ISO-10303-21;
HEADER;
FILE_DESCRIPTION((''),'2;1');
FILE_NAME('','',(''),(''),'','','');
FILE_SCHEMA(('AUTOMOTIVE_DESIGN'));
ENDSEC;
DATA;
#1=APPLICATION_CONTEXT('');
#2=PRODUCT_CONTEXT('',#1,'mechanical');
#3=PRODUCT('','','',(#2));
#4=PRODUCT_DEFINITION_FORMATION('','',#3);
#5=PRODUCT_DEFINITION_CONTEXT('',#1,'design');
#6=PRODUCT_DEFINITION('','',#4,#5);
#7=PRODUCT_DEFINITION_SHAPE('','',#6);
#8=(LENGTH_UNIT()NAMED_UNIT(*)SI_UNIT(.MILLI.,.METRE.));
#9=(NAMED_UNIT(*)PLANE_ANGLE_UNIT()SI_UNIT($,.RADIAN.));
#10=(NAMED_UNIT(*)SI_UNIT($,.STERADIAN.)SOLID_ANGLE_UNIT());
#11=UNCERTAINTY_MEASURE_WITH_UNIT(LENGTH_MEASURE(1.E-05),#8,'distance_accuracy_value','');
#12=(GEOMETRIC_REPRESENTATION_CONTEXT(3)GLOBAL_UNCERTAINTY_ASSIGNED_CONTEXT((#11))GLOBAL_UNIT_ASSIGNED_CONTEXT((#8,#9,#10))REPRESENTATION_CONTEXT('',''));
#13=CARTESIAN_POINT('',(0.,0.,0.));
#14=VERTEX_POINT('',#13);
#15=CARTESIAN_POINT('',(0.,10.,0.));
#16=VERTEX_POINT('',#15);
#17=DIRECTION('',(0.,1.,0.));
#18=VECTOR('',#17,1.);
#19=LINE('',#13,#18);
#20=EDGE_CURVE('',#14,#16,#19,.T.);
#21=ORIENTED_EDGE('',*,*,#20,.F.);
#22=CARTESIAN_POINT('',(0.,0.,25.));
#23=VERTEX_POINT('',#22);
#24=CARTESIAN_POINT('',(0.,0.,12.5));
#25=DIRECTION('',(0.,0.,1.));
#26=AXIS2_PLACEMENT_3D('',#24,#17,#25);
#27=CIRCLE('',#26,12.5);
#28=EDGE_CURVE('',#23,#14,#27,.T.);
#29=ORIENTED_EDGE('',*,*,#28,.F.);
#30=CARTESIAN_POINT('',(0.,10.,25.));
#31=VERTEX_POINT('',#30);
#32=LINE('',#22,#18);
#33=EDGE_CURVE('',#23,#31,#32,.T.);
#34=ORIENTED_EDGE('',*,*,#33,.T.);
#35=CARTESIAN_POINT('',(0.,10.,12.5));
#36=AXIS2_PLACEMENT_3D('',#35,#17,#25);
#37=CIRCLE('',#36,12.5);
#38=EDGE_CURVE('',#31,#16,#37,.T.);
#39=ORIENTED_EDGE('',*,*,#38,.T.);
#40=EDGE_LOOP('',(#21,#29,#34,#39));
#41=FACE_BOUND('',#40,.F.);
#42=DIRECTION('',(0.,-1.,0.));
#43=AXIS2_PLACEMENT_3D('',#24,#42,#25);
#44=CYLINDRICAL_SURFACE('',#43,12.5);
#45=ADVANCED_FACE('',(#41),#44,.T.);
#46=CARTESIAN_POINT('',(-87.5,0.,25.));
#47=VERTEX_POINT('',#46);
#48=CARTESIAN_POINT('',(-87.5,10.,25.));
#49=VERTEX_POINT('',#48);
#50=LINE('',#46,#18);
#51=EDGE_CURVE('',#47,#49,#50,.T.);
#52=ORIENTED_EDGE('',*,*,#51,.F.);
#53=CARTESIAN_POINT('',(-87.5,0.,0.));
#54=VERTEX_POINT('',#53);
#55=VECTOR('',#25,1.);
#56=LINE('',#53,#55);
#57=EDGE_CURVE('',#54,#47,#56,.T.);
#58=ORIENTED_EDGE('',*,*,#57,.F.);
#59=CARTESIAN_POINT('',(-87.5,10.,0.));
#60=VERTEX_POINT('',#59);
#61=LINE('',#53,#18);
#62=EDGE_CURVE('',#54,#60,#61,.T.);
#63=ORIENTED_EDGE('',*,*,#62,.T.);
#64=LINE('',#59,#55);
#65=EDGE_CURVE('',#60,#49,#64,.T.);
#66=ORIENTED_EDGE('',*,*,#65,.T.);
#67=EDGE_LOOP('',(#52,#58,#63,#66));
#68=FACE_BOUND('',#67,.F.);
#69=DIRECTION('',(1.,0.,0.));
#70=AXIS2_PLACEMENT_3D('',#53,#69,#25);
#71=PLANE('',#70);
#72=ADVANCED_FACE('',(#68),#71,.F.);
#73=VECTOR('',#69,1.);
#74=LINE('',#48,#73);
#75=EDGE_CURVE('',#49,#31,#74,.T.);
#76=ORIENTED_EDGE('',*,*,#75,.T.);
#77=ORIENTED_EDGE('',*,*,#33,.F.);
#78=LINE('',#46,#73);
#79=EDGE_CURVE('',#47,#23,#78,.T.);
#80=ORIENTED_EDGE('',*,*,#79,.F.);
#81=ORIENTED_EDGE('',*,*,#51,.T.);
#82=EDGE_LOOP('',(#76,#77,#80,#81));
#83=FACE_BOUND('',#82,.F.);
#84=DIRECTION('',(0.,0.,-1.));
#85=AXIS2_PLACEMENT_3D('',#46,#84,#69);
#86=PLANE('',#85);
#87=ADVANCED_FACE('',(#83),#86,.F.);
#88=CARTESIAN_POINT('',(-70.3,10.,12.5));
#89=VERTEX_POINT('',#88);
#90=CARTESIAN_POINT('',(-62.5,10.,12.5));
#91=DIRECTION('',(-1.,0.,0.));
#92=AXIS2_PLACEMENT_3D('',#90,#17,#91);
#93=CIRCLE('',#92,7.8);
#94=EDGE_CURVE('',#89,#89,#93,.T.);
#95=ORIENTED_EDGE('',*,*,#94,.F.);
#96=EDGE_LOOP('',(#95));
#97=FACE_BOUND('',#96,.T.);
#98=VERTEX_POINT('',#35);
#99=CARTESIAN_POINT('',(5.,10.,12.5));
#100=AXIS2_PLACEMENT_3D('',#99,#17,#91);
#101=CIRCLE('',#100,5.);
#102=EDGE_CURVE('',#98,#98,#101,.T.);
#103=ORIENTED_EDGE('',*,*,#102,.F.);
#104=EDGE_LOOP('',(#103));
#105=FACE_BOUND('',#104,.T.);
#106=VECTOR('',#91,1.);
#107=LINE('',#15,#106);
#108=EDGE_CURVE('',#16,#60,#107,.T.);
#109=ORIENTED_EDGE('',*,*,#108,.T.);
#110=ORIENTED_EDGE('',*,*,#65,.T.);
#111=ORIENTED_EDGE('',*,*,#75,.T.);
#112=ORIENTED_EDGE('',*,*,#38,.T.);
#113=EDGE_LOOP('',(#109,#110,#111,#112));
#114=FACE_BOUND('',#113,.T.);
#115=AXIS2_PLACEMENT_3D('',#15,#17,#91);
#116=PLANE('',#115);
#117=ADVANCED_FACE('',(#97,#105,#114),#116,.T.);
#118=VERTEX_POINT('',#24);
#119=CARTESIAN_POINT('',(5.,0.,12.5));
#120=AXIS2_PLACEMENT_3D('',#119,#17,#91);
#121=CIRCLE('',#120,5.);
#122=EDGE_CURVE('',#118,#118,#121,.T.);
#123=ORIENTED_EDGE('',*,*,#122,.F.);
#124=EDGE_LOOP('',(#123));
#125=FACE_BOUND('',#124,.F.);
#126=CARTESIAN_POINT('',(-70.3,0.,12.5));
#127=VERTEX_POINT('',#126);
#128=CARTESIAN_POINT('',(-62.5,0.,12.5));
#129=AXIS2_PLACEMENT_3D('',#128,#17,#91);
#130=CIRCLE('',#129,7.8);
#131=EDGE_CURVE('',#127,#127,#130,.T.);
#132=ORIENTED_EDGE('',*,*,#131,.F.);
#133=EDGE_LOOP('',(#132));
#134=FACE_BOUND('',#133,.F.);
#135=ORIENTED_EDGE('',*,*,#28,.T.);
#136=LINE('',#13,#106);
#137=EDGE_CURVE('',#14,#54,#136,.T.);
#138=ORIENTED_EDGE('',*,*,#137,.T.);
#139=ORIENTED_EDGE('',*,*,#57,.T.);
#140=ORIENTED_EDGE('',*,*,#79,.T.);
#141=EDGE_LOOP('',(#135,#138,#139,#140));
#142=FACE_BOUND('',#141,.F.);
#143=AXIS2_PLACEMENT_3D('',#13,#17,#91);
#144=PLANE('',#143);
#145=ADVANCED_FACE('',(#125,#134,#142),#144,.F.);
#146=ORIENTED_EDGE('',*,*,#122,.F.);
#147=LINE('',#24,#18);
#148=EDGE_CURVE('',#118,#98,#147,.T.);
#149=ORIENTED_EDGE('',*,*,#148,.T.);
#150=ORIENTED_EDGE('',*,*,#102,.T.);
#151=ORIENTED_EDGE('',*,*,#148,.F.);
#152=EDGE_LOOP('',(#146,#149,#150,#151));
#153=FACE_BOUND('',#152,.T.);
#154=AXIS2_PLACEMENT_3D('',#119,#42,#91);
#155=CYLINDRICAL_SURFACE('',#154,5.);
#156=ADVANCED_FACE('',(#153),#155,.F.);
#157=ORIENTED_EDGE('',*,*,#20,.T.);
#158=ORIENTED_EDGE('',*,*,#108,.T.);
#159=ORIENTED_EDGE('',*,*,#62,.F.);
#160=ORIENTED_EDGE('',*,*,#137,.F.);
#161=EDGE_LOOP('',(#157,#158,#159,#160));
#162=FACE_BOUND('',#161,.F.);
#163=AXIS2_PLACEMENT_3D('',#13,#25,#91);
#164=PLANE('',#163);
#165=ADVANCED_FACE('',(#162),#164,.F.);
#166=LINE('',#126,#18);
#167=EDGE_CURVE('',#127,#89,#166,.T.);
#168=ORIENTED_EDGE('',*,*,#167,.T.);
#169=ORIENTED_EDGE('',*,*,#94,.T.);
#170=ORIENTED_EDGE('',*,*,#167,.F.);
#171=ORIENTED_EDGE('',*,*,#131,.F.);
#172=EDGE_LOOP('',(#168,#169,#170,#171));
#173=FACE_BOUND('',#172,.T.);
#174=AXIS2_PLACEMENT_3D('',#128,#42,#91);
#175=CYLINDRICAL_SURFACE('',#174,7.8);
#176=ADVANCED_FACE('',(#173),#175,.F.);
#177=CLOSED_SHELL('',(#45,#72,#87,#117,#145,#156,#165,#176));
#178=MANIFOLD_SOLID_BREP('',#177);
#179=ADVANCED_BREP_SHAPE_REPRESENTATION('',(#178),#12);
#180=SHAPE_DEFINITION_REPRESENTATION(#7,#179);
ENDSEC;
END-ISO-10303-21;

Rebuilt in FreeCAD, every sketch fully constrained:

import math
import FreeCAD as App
import Part
import Sketcher

V = App.Vector

doc = App.newDocument("Part")
body = doc.addObject("PartDesign::Body", "Body")

# Sketch on XZ plane
sketch1 = doc.addObject("Sketcher::SketchObject", "Sketch")
body.addObject(sketch1)
sketch1.AttachmentSupport = (doc.XZ_Plane, [""])
sketch1.MapMode = "FlatFace"
sketch1.addGeometry([
    Part.ArcOfCircle(Part.Circle(V(0, 12, 0), V(0, 0, 1), 12), math.radians(-90), math.radians(90)),  # 0
    Part.LineSegment(V(0, 0, 0), V(-88, 0, 0)),  # 1
    Part.LineSegment(V(-88, 0, 0), V(-88, 25, 0)),  # 2
    Part.LineSegment(V(-88, 25, 0), V(0, 25, 0)),  # 3
    Part.Circle(V(5, 12, 0), V(0, 0, 1), 5),  # 4
    Part.Circle(V(-62, 12, 0), V(0, 0, 1), 8),  # 5
], False)
sketch1.addConstraint([
    Sketcher.Constraint("Tangent", 0, 1, 1, 1),
    Sketcher.Constraint("Coincident", 1, 2, 2, 1),
    Sketcher.Constraint("Coincident", 2, 2, 3, 1),
    Sketcher.Constraint("Tangent", 3, 2, 0, 2),
    Sketcher.Constraint("Horizontal", 1),
    Sketcher.Constraint("Vertical", 2),
    Sketcher.Constraint("Horizontal", 3),
    Sketcher.Constraint("Coincident", 0, 1, -1, 1),
    Sketcher.Constraint("Horizontal", 0, 3, 4, 3),
    Sketcher.Constraint("Horizontal", 4, 3, 5, 3),
    Sketcher.Constraint("Diameter", 4, 10.0),
    Sketcher.Constraint("Diameter", 5, 15.6),
    Sketcher.Constraint("Radius", 0, 12.5),
    Sketcher.Constraint("DistanceX", 1, 2, 1, 1, 87.5),
    Sketcher.Constraint("DistanceX", -1, 1, 4, 3, 5.0),
    Sketcher.Constraint("DistanceX", 1, 2, 5, 3, 25.0),
])
pad1 = doc.addObject("PartDesign::Pad", "Pad")
body.addObject(pad1)
pad1.Profile = sketch1
pad1.Length = 10
pad1.Reversed = True

doc.recompute()
